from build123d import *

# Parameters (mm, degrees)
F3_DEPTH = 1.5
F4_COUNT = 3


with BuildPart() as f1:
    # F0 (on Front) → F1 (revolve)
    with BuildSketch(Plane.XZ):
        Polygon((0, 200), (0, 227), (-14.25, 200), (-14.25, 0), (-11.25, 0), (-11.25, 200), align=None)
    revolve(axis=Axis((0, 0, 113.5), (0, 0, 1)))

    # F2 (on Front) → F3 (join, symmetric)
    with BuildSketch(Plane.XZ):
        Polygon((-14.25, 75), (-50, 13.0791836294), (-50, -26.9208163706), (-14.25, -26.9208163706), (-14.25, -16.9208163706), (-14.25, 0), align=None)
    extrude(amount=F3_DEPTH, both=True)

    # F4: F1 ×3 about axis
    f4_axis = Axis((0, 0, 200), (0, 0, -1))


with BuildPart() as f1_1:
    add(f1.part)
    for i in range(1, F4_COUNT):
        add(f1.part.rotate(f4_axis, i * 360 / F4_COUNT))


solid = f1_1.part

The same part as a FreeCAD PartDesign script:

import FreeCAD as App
import Part
import Sketcher

V = App.Vector
Q = App.Units.Quantity


def add_polygon(sketch, points):
    """Adds a closed chain of lines whose ends are joined by coincident constraints."""
    first, n = sketch.GeometryCount, len(points)
    for a, b in zip(points, points[1:] + points[:1]):
        sketch.addGeometry(Part.LineSegment(App.Vector(*a, 0), App.Vector(*b, 0)), False)
    for i in range(n):
        sketch.addConstraint(Sketcher.Constraint("Coincident", first + i, 2, first + (i + 1) % n, 1))

doc = App.newDocument("Part")
body = doc.addObject("PartDesign::Body", "Body")
body.AllowCompound = True

# Sketch on XZ plane
sketch1 = body.newObject("Sketcher::SketchObject", "Sketch")
sketch1.AttachmentSupport = (doc.getObject("XZ_Plane"), [""])
sketch1.MapMode = "FlatFace"
add_polygon(sketch1, [(0, 200), (0, 227), (-14.2, 200), (-14.2, 0), (-11.2, 0), (-11.2, 200)])  # lines 0-5
sketch1.addConstraint([
    Sketcher.Constraint("Vertical", 0),
    Sketcher.Constraint("Vertical", 2),
    Sketcher.Constraint("Horizontal", 3),
    Sketcher.Constraint("Vertical", 4),
    Sketcher.Constraint("Horizontal", 5),
    Sketcher.Constraint("PointOnObject", 0, 2, -2),
    Sketcher.Constraint("PointOnObject", 2, 2, -1),
    Sketcher.Constraint("Horizontal", 1, 2, 4, 2),
    Sketcher.Constraint("DistanceX", 3, 1, 3, 2, 3.0),
    Sketcher.Constraint("DistanceY", 0, 1, 0, 2, 27.0),
    Sketcher.Constraint("DistanceY", 2, 2, 2, 1, 200.0),
    Sketcher.Constraint("DistanceX", 5, 1, 5, 2, 11.25),
])
revolution = body.newObject("PartDesign::Revolution", "Revolution")
revolution.Profile = sketch1
revolution.ReferenceAxis = (sketch1, ["V_Axis"])
revolution.Angle = 360

# Sketch on XZ plane
sketch2 = body.newObject("Sketcher::SketchObject", "Sketch001")
sketch2.AttachmentSupport = (doc.getObject("XZ_Plane"), [""])
sketch2.MapMode = "FlatFace"
add_polygon(sketch2, [(-14, 75), (-50, 13), (-50, -27), (-14, -27)])  # lines 0-3
sketch2.addConstraint([
    Sketcher.Constraint("Vertical", 1),
    Sketcher.Constraint("Horizontal", 2),
    Sketcher.Constraint("Vertical", 3),
    Sketcher.Constraint("DistanceY", 1, 2, 1, 1, 40.0),
    Sketcher.Constraint("Angle", 0, Q("-120 deg")),
    Sketcher.Constraint("DistanceX", 0, 2, -1, 1, 50.0),
    Sketcher.Constraint("DistanceY", -1, 1, 3, 2, 75.0),
    Sketcher.Constraint("Distance", 0, 71.5),
])
pad1 = body.newObject("PartDesign::Pad", "Pad")
pad1.Profile = sketch2
pad1.Length = 3
pad1.Midplane = True
body2 = doc.addObject("PartDesign::Body", "Body001")
body2.AllowCompound = True
doc.recompute()

body2.BaseFeature = body
doc.recompute()

body3 = doc.addObject("PartDesign::Body", "Body002")
body3.BaseFeature = body
body3.Placement = App.Placement(V(0, 0, 0), App.Rotation(V(0, 0, -1), 120))
boolean = body2.newObject("PartDesign::Boolean", "Boolean")
boolean.Type = "Fuse"
boolean.addObjects([body3])
doc.recompute()

body.Placement = App.Placement(V(0, 0, 0), App.Rotation(V(0, 0, -1), 240))
boolean2 = body2.newObject("PartDesign::Boolean", "Boolean001")
boolean2.Type = "Fuse"
boolean2.addObjects([body])

doc.recompute()
